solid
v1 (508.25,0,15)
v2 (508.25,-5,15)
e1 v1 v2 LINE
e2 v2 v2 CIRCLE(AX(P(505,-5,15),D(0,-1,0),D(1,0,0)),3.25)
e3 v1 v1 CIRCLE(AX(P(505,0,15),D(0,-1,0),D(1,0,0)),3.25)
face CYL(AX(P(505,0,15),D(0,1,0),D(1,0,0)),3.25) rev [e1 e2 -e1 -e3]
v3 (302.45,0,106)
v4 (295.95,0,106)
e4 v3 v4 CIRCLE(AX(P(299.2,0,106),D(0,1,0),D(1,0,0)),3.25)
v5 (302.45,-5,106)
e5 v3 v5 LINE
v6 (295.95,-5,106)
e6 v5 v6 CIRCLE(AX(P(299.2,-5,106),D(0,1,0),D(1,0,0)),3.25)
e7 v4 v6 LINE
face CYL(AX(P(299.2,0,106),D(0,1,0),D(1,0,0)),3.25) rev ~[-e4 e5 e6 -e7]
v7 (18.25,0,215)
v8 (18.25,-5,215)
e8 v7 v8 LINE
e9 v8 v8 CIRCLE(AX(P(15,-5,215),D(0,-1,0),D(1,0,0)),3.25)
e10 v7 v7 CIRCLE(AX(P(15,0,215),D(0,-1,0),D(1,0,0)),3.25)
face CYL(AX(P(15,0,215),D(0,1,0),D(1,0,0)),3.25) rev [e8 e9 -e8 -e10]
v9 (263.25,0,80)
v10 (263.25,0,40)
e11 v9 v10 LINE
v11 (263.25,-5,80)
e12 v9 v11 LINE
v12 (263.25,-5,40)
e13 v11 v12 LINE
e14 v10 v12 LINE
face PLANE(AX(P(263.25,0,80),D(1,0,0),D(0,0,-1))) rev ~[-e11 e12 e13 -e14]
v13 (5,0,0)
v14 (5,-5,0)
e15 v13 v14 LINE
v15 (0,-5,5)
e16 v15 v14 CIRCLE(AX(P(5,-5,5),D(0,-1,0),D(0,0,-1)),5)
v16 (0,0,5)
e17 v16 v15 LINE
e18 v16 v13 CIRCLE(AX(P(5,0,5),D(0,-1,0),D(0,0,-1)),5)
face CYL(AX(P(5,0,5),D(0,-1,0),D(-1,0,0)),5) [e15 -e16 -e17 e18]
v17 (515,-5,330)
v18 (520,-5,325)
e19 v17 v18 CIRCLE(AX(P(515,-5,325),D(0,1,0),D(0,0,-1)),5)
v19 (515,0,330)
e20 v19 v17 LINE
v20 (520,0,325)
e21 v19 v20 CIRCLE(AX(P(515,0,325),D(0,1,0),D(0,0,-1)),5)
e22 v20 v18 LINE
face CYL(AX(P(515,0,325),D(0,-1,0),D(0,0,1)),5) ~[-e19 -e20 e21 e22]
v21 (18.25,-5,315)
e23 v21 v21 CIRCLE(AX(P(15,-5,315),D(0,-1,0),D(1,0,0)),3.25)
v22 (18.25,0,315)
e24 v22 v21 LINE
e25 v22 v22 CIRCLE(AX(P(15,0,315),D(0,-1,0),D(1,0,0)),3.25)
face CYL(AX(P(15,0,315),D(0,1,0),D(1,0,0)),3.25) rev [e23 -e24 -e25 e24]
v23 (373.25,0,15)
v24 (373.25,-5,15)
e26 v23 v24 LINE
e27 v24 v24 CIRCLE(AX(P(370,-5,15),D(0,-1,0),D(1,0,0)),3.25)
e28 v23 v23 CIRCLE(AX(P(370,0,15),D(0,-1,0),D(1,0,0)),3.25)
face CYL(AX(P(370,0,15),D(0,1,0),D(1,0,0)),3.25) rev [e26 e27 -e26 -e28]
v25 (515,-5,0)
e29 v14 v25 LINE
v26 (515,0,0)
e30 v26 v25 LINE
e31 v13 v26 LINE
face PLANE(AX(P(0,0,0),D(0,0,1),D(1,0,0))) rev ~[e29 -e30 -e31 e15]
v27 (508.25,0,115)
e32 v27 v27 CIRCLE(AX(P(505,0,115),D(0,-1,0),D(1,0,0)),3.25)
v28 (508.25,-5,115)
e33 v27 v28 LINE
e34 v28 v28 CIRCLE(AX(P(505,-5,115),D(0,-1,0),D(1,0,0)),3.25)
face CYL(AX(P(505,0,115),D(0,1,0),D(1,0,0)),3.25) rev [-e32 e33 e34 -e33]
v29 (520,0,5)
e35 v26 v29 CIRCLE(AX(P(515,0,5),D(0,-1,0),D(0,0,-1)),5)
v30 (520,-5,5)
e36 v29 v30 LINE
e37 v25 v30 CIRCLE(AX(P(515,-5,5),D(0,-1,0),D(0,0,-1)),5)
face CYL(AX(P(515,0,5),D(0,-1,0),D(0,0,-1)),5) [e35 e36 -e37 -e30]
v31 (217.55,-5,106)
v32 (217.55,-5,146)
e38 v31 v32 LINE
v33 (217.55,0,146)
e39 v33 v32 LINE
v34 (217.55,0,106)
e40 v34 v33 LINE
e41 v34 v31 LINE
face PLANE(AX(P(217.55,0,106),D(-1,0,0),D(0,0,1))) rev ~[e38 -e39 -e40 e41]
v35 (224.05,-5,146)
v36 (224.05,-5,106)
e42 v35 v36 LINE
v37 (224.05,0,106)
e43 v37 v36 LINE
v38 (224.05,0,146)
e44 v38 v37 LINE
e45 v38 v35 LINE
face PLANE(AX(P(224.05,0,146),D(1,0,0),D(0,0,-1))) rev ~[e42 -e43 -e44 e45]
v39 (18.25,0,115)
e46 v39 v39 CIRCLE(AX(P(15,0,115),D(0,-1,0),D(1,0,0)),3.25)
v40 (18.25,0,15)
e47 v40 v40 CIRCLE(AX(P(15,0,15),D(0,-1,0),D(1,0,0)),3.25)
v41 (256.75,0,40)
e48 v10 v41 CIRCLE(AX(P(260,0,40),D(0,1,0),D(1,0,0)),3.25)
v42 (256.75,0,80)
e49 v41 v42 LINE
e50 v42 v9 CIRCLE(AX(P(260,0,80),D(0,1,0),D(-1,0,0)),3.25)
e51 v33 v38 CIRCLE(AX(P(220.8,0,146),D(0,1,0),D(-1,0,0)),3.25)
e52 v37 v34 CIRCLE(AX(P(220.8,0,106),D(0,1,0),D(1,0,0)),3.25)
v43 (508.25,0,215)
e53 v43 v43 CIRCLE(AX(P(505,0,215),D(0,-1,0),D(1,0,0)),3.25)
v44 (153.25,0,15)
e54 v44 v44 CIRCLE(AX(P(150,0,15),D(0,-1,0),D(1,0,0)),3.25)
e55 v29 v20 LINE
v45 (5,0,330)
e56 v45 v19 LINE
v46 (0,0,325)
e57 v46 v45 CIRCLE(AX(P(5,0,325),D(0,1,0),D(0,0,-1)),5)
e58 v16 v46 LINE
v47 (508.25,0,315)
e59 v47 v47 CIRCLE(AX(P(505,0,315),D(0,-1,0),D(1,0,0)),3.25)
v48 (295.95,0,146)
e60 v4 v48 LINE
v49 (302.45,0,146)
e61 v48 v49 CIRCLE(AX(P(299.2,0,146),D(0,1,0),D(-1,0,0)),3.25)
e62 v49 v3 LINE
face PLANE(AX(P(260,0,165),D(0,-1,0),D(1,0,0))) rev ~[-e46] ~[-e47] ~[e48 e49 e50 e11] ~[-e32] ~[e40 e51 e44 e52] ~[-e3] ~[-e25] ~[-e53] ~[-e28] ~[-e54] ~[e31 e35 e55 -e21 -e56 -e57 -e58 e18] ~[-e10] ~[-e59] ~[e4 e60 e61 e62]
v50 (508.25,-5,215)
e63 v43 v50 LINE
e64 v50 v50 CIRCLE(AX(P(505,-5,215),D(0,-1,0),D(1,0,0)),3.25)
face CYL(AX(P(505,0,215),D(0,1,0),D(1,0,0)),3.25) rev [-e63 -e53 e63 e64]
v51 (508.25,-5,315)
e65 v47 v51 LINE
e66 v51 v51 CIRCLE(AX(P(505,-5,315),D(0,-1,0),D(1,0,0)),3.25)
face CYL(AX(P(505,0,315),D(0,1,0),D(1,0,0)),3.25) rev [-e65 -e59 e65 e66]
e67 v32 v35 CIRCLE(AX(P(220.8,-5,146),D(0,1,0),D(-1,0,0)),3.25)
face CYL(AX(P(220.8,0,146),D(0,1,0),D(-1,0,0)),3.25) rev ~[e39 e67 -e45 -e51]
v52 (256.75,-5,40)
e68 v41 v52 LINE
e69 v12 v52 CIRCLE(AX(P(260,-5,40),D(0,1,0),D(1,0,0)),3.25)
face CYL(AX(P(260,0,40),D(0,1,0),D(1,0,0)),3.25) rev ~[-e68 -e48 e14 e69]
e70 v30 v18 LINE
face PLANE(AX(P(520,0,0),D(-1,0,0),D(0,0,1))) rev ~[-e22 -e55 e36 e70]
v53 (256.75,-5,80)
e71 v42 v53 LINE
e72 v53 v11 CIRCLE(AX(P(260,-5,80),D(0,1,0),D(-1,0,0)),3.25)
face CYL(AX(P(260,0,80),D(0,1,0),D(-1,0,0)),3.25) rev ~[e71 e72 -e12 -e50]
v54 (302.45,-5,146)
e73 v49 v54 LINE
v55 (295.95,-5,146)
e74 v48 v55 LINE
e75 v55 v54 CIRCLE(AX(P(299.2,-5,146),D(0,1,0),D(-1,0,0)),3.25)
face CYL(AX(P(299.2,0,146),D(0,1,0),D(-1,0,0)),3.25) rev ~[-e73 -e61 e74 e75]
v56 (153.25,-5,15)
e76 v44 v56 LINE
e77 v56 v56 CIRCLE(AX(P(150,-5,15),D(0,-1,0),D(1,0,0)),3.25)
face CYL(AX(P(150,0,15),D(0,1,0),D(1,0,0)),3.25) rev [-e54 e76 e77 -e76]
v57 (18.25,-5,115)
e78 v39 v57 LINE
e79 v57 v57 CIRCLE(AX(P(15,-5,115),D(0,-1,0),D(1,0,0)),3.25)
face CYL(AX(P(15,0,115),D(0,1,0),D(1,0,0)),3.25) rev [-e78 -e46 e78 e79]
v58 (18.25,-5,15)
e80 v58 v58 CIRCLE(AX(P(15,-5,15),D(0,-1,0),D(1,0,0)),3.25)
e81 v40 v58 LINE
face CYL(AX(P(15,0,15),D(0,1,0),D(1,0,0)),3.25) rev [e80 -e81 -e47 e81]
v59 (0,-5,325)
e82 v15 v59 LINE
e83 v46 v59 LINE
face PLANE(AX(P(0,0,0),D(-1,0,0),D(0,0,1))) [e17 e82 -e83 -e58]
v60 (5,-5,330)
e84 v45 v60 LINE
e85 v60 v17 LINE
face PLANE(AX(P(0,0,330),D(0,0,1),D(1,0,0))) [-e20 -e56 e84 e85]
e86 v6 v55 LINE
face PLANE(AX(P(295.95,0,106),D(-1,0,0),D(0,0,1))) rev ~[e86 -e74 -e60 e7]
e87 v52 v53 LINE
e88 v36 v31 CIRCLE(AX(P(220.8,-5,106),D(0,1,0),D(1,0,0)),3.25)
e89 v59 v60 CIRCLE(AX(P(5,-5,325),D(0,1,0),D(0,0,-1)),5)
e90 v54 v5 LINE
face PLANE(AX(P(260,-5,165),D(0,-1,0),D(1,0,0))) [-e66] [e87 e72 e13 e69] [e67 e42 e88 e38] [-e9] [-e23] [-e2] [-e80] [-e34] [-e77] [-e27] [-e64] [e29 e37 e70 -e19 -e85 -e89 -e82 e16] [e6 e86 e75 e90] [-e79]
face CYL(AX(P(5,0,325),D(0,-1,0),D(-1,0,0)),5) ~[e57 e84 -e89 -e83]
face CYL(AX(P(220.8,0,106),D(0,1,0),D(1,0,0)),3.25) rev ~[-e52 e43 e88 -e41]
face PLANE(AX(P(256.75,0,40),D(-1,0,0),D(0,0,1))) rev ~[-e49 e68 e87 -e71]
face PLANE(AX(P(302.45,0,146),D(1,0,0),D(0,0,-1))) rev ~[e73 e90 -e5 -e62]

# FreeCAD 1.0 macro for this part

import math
import FreeCAD as App
import Part
import Sketcher
Q = App.Units.Quantity


def edges_at(feature, points):
    """Names of the edges that pass closest to the given points."""
    edges = feature.Shape.Edges
    near = lambda p: min(range(len(edges)), key=lambda i: edges[i].distToShape(Part.Vertex(*p))[0])
    return sorted({f"Edge{near(p) + 1}" for p in points})


def add_polygon(sketch, points):
    """Adds a closed chain of lines whose ends are joined by coincident constraints."""
    first, n = sketch.GeometryCount, len(points)
    for a, b in zip(points, points[1:] + points[:1]):
        sketch.addGeometry(Part.LineSegment(App.Vector(*a, 0), App.Vector(*b, 0)), False)
    for i in range(n):
        sketch.addConstraint(Sketcher.Constraint("Coincident", first + i, 2, first + (i + 1) % n, 1))

doc = App.newDocument("Part")
body = doc.addObject("PartDesign::Body", "Body")

# Sketch on XZ plane
sketch1 = body.newObject("Sketcher::SketchObject", "Sketch")
sketch1.AttachmentSupport = (doc.getObject("XZ_Plane"), [""])
sketch1.MapMode = "FlatFace"
add_polygon(sketch1, [(0, 330), (0, 0), (520, 0), (520, 330)])  # lines 0-3
sketch1.addGeometry(Part.Circle(App.Vector(15, 15, 0), App.Vector(0, 0, 1), 3.25), False)  # 4
sketch1.addGeometry(Part.Circle(App.Vector(150, 15, 0), App.Vector(0, 0, 1), 3.25), False)  # 5
sketch1.addGeometry(Part.Circle(App.Vector(15, 115, 0), App.Vector(0, 0, 1), 3.25), False)  # 6
sketch1.addGeometry(Part.ArcOfCircle(Part.Circle(App.Vector(220.8, 106, 0), App.Vector(0, 0, 1), 3.25), math.radians(180), math.radians(360)), False)  # 7
sketch1.addGeometry(Part.LineSegment(App.Vector(217.55, 106, 0), App.Vector(217.55, 146, 0)), False)  # 8
sketch1.addGeometry(Part.ArcOfCircle(Part.Circle(App.Vector(220.8, 146, 0), App.Vector(0, 0, 1), 3.25), math.radians(0), math.radians(180)), False)  # 9
sketch1.addGeometry(Part.LineSegment(App.Vector(224.05, 146, 0), App.Vector(224.05, 106, 0)), False)  # 10
sketch1.addGeometry(Part.Circle(App.Vector(370, 15, 0), App.Vector(0, 0, 1), 3.25), False)  # 11
sketch1.addGeometry(Part.ArcOfCircle(Part.Circle(App.Vector(260, 40, 0), App.Vector(0, 0, 1), 3.25), math.radians(180), math.radians(360)), False)  # 12
sketch1.addGeometry(Part.LineSegment(App.Vector(256.75, 40, 0), App.Vector(256.75, 80, 0)), False)  # 13
sketch1.addGeometry(Part.ArcOfCircle(Part.Circle(App.Vector(260, 80, 0), App.Vector(0, 0, 1), 3.25), math.radians(0), math.radians(180)), False)  # 14
sketch1.addGeometry(Part.LineSegment(App.Vector(263.25, 80, 0), App.Vector(263.25, 40, 0)), False)  # 15
sketch1.addGeometry(Part.Circle(App.Vector(505, 15, 0), App.Vector(0, 0, 1), 3.25), False)  # 16
sketch1.addGeometry(Part.ArcOfCircle(Part.Circle(App.Vector(299.2, 106, 0), App.Vector(0, 0, 1), 3.25), math.radians(180), math.radians(360)), False)  # 17
sketch1.addGeometry(Part.LineSegment(App.Vector(295.95, 106, 0), App.Vector(295.95, 146, 0)), False)  # 18
sketch1.addGeometry(Part.ArcOfCircle(Part.Circle(App.Vector(299.2, 146, 0), App.Vector(0, 0, 1), 3.25), math.radians(0), math.radians(180)), False)  # 19
sketch1.addGeometry(Part.LineSegment(App.Vector(302.45, 146, 0), App.Vector(302.45, 106, 0)), False)  # 20
sketch1.addGeometry(Part.Circle(App.Vector(505, 115, 0), App.Vector(0, 0, 1), 3.25), False)  # 21
sketch1.addGeometry(Part.Circle(App.Vector(15, 215, 0), App.Vector(0, 0, 1), 3.25), False)  # 22
sketch1.addGeometry(Part.Circle(App.Vector(15, 315, 0), App.Vector(0, 0, 1), 3.25), False)  # 23
sketch1.addGeometry(Part.Circle(App.Vector(505, 215, 0), App.Vector(0, 0, 1), 3.25), False)  # 24
sketch1.addGeometry(Part.Circle(App.Vector(505, 315, 0), App.Vector(0, 0, 1), 3.25), False)  # 25
sketch1.addConstraint([
    Sketcher.Constraint("Tangent", 7, 1, 8, 1),
    Sketcher.Constraint("Tangent", 8, 2, 9, 2),
    Sketcher.Constraint("Tangent", 9, 1, 10, 1),
    Sketcher.Constraint("Tangent", 10, 2, 7, 2),
    Sketcher.Constraint("Tangent", 12, 1, 13, 1),
    Sketcher.Constraint("Tangent", 13, 2, 14, 2),
    Sketcher.Constraint("Tangent", 14, 1, 15, 1),
    Sketcher.Constraint("Tangent", 15, 2, 12, 2),
    Sketcher.Constraint("Tangent", 17, 1, 18, 1),
    Sketcher.Constraint("Tangent", 18, 2, 19, 2),
    Sketcher.Constraint("Tangent", 19, 1, 20, 1),
    Sketcher.Constraint("Tangent", 20, 2, 17, 2),
    Sketcher.Constraint("Vertical", 0),
    Sketcher.Constraint("Horizontal", 1),
    Sketcher.Constraint("Vertical", 2),
    Sketcher.Constraint("Horizontal", 3),
    Sketcher.Constraint("Vertical", 8),
    Sketcher.Constraint("Vertical", 10),
    Sketcher.Constraint("Vertical", 13),
    Sketcher.Constraint("Vertical", 15),
    Sketcher.Constraint("Vertical", 18),
    Sketcher.Constraint("Vertical", 20),
    Sketcher.Constraint("Coincident", 0, 2, -1, 1),
    Sketcher.Constraint("Equal", 4, 5),
    Sketcher.Constraint("Equal", 5, 6),
    Sketcher.Constraint("Equal", 6, 7),
    Sketcher.Constraint("Equal", 9, 11),
    Sketcher.Constraint("Equal", 11, 12),
    Sketcher.Constraint("Equal", 14, 16),
    Sketcher.Constraint("Equal", 16, 17),
    Sketcher.Constraint("Equal", 19, 21),
    Sketcher.Constraint("Equal", 21, 22),
    Sketcher.Constraint("Equal", 22, 23),
    Sketcher.Constraint("Equal", 23, 24),
    Sketcher.Constraint("Equal", 24, 25),
    Sketcher.Constraint("Horizontal", 4, 3, 5, 3),
    Sketcher.Constraint("Horizontal", 5, 3, 11, 3),
    Sketcher.Constraint("Horizontal", 11, 3, 16, 3),
    Sketcher.Constraint("Horizontal", 7, 3, 17, 3),
    Sketcher.Constraint("Horizontal", 9, 3, 19, 3),
    Sketcher.Constraint("Horizontal", 6, 3, 21, 3),
    Sketcher.Constraint("Horizontal", 22, 3, 24, 3),
    Sketcher.Constraint("Horizontal", 23, 3, 25, 3),
    Sketcher.Constraint("Vertical", 4, 3, 6, 3),
    Sketcher.Constraint("Vertical", 16, 3, 21, 3),
    Sketcher.Constraint("Vertical", 6, 3, 22, 3),
    Sketcher.Constraint("Vertical", 22, 3, 23, 3),
    Sketcher.Constraint("Vertical", 21, 3, 24, 3),
    Sketcher.Constraint("Vertical", 24, 3, 25, 3),
    Sketcher.Constraint("Equal", 10, 13),
    Sketcher.Constraint("Diameter", 4, Q("6.5 mm")),
    Sketcher.Constraint("DistanceX", 1, 1, 1, 2, Q("520 mm")),
    Sketcher.Constraint("DistanceY", 0, 2, 0, 1, Q("330 mm")),
    Sketcher.Constraint("DistanceY", 8, 1, 8, 2, Q("40 mm")),
    Sketcher.Constraint("DistanceX", -1, 1, 4, 3, Q("15 mm")),
    Sketcher.Constraint("DistanceY", -1, 1, 4, 3, Q("15 mm")),
    Sketcher.Constraint("DistanceX", -1, 1, 5, 3, Q("150 mm")),
    Sketcher.Constraint("DistanceY", -1, 1, 6, 3, Q("115 mm")),
    Sketcher.Constraint("DistanceY", -1, 1, 7, 3, Q("106 mm")),
    Sketcher.Constraint("DistanceX", -1, 1, 11, 3, Q("370 mm")),
    Sketcher.Constraint("DistanceX", -1, 1, 12, 3, Q("260 mm")),
    Sketcher.Constraint("DistanceY", -1, 1, 12, 3, Q("40 mm")),
    Sketcher.Constraint("DistanceX", -1, 1, 16, 3, Q("505 mm")),
    Sketcher.Constraint("DistanceY", -1, 1, 22, 3, Q("215 mm")),
    Sketcher.Constraint("DistanceY", -1, 1, 23, 3, Q("315 mm")),
    Sketcher.Constraint("DistanceX", -1, 1, 7, 3, Q("220.8 mm")),
    Sketcher.Constraint("DistanceX", -1, 1, 17, 3, Q("299.2 mm")),
])
pad1 = body.newObject("PartDesign::Pad", "Pad")
pad1.Profile = sketch1
pad1.Length = 5
doc.recompute()

fillet = body.newObject("PartDesign::Fillet", "Fillet")
fillet.Base = (pad1, edges_at(pad1, [
    (520, -2.5, 330),
    (520, -2.5, 0),
    (0, -2.5, 0),
    (0, -2.5, 330),
]))
fillet.Radius = 5

doc.recompute()
